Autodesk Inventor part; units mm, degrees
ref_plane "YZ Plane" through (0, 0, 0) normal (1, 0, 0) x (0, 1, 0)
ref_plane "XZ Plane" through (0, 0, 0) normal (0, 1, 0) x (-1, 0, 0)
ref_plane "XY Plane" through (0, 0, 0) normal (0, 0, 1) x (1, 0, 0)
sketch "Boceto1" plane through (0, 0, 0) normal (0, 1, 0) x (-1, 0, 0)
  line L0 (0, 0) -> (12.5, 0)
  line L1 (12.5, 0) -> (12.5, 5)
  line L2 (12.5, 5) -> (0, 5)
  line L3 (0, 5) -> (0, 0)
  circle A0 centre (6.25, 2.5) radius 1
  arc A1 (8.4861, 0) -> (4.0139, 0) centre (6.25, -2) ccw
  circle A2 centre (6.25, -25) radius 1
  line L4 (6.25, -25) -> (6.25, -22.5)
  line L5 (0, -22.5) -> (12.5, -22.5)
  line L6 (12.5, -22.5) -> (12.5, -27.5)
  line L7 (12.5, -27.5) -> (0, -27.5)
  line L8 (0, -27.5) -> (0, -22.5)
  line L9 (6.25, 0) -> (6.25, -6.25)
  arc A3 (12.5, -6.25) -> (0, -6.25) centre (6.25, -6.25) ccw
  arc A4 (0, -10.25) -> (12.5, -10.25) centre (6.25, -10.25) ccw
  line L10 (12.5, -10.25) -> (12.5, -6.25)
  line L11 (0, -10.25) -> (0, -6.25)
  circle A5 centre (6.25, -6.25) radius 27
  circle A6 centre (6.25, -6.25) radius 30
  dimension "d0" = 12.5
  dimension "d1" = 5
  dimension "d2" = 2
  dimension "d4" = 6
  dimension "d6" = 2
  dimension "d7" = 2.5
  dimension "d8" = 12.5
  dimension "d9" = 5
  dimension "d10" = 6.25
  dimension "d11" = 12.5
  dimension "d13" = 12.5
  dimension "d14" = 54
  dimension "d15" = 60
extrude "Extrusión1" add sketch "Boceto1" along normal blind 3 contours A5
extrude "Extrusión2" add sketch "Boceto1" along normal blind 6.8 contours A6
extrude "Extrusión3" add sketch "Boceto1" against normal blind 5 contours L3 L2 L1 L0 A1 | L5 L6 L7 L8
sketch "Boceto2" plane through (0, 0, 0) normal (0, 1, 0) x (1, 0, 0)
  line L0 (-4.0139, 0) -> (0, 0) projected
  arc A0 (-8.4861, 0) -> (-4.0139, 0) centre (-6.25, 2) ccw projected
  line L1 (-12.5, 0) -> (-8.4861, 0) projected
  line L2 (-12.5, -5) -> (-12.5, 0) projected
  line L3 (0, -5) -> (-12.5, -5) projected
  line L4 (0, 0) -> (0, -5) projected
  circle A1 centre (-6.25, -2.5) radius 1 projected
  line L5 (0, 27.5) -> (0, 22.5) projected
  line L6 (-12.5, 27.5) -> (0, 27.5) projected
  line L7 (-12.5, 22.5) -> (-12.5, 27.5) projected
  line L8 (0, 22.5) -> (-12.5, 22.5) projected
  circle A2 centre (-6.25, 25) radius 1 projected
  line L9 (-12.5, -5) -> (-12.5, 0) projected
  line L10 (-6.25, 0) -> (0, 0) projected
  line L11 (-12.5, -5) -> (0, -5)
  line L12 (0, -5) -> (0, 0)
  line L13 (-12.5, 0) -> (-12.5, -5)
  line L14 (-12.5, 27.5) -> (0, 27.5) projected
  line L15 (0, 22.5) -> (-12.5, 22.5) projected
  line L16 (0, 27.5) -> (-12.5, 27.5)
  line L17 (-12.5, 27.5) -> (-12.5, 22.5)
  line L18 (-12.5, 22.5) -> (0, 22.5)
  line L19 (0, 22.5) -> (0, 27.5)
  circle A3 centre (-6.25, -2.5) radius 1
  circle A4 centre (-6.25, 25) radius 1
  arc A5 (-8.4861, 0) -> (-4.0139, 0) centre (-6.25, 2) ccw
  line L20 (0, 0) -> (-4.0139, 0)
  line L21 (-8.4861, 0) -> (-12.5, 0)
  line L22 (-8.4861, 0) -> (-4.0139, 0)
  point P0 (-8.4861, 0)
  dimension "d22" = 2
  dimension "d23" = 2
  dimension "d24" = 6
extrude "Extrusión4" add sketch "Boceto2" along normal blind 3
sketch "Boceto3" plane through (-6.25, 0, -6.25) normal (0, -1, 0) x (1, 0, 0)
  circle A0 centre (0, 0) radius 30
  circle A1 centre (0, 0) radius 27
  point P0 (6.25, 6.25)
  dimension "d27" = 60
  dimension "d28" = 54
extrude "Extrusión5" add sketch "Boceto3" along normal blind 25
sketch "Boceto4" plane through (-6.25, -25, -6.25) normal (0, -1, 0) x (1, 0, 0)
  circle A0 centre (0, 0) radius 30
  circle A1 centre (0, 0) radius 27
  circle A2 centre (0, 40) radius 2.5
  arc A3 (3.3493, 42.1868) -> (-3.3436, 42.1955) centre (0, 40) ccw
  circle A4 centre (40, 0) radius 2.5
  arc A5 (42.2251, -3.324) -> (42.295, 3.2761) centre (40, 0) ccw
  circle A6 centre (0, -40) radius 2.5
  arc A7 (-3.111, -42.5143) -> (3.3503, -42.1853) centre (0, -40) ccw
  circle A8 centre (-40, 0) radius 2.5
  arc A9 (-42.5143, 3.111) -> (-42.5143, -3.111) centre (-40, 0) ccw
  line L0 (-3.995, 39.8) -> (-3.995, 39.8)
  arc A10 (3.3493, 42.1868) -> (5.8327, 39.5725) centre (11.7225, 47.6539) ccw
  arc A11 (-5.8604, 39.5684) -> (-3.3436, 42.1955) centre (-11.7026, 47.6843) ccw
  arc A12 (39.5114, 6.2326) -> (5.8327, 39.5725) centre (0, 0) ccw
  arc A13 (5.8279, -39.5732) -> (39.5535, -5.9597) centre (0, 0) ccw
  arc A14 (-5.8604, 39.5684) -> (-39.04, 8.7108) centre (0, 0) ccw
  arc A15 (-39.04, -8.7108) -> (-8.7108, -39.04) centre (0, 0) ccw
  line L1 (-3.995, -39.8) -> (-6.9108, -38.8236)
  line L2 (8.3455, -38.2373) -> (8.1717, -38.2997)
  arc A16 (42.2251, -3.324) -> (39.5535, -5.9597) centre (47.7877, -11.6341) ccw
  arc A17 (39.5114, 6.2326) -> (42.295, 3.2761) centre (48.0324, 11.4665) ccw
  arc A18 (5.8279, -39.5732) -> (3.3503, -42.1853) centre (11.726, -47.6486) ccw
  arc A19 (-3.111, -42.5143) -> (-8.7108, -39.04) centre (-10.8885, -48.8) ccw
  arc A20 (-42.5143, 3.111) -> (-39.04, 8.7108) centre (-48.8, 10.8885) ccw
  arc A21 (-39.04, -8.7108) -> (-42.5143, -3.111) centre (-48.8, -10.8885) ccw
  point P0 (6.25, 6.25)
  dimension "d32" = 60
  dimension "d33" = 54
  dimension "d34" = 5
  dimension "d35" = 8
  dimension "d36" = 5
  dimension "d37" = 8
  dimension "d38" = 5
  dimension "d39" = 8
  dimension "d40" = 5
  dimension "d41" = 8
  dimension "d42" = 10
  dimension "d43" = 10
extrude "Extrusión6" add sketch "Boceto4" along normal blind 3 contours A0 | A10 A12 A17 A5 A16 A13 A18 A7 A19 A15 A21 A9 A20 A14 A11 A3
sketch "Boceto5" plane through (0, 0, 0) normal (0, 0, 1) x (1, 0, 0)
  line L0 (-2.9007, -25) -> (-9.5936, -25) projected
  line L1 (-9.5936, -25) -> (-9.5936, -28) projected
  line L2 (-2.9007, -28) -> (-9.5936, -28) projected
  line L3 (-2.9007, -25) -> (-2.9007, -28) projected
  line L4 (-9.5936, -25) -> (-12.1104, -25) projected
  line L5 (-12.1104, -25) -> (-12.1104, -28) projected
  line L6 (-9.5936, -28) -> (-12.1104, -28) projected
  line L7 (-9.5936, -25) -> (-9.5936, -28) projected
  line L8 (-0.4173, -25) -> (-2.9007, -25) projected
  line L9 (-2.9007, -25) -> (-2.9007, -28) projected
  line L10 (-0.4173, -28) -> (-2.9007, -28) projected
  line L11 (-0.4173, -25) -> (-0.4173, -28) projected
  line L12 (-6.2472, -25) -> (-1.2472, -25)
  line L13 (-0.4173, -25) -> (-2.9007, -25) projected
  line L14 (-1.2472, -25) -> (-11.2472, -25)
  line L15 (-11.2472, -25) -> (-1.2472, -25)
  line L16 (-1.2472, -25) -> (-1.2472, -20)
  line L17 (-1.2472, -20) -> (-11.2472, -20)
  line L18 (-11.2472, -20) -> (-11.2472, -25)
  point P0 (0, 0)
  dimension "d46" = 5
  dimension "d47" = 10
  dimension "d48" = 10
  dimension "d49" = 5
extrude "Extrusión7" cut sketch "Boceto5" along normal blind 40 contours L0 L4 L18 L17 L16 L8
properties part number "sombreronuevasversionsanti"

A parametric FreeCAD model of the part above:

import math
import FreeCAD as App
import Part
import Sketcher
from FreeCAD import Vector

doc = App.newDocument("Part")
body = doc.addObject("PartDesign::Body", "Body")
body.AllowCompound = True

# Sketch on XZ plane
sketch1 = body.newObject("Sketcher::SketchObject", "Sketch")
sketch1.AttachmentSupport = (doc.getObject("XZ_Plane"), [""])
sketch1.MapMode = "FlatFace"
sketch1.addGeometry([
    Part.Circle(Vector(-6.2, -6.2, 0), Vector(0, 0, 1), 27),  # 0
    Part.LineSegment(Vector(0, -22.5, 0), Vector(-12.5, -22.5, 0)),  # 1
    Part.LineSegment(Vector(-12.5, -22.5, 0), Vector(-12.5, -27.5, 0)),  # 2
    Part.LineSegment(Vector(-12.5, -27.5, 0), Vector(0, -27.5, 0)),  # 3
    Part.LineSegment(Vector(0, -27.5, 0), Vector(0, -22.5, 0)),  # 4
    Part.ArcOfCircle(Part.Circle(Vector(-6.2, -6.2, 0), Vector(0, 0, 1), 6.2), math.radians(0), math.radians(90)),  # 5
    Part.ArcOfCircle(Part.Circle(Vector(-6.2, -6.2, 0), Vector(0, 0, 1), 6.2), math.radians(90), math.radians(180)),  # 6
    Part.LineSegment(Vector(-12.5, -6.2, 0), Vector(-12.5, -10.2, 0)),  # 7
    Part.ArcOfCircle(Part.Circle(Vector(-6.2, -10.2, 0), Vector(0, 0, 1), 6.2), math.radians(180), math.radians(360)),  # 8
    Part.LineSegment(Vector(0, -10.2, 0), Vector(0, -6.2, 0)),  # 9
    Part.LineSegment(Vector(-6.2, 0, 0), Vector(0, 0, 0)),  # 10
    Part.LineSegment(Vector(0, 0, 0), Vector(0, 5, 0)),  # 11
    Part.LineSegment(Vector(0, 5, 0), Vector(-12.5, 5, 0)),  # 12
    Part.LineSegment(Vector(-12.5, 5, 0), Vector(-12.5, 0, 0)),  # 13
    Part.LineSegment(Vector(-12.5, 0, 0), Vector(-6.2, 0, 0)),  # 14
], False)
sketch1.addConstraint([
    Sketcher.Constraint("Coincident", 1, 2, 2, 1),
    Sketcher.Constraint("Coincident", 2, 2, 3, 1),
    Sketcher.Constraint("Coincident", 3, 2, 4, 1),
    Sketcher.Constraint("Coincident", 4, 2, 1, 1),
    Sketcher.Constraint("Tangent", 5, 2, 6, 1),
    Sketcher.Constraint("Tangent", 6, 2, 7, 1),
    Sketcher.Constraint("Tangent", 7, 2, 8, 1),
    Sketcher.Constraint("Tangent", 8, 2, 9, 1),
    Sketcher.Constraint("Tangent", 9, 2, 5, 1),
    Sketcher.Constraint("Coincident", 10, 2, 11, 1),
    Sketcher.Constraint("Coincident", 11, 2, 12, 1),
    Sketcher.Constraint("Coincident", 12, 2, 13, 1),
    Sketcher.Constraint("Coincident", 13, 2, 14, 1),
    Sketcher.Constraint("Coincident", 14, 2, 10, 1),
    Sketcher.Constraint("Horizontal", 1),
    Sketcher.Constraint("Vertical", 2),
    Sketcher.Constraint("Horizontal", 3),
    Sketcher.Constraint("Vertical", 4),
    Sketcher.Constraint("Vertical", 7),
    Sketcher.Constraint("Vertical", 9),
    Sketcher.Constraint("Horizontal", 10),
    Sketcher.Constraint("Vertical", 11),
    Sketcher.Constraint("Horizontal", 12),
    Sketcher.Constraint("Vertical", 13),
    Sketcher.Constraint("Horizontal", 14),
    Sketcher.Constraint("Coincident", 10, 2, -1, 1),
    Sketcher.Constraint("Coincident", 5, 3, 0, 3),
    Sketcher.Constraint("Coincident", 14, 2, 5, 2),
    Sketcher.Constraint("Equal", 5, 6),
    Sketcher.Constraint("PointOnObject", 3, 2, -2),
    Sketcher.Constraint("PointOnObject", 8, 2, -2),
    Sketcher.Constraint("Vertical", 8, 3, 5, 2),
    Sketcher.Constraint("Vertical", 2, 2, 6, 2),
    Sketcher.Constraint("Vertical", 7, 2, 12, 2),
    Sketcher.Constraint("Equal", 4, 11),
    Sketcher.Constraint("Diameter", 0, 54.0),
    Sketcher.Constraint("DistanceY", 2, 2, 2, 1, 5.0),
    Sketcher.Constraint("Radius", 5, 6.25),
    Sketcher.Constraint("DistanceY", 7, 2, 7, 1, 4.0),
    Sketcher.Constraint("DistanceY", 1, 2, -1, 1, 22.5),
])
pad1 = body.newObject("PartDesign::Pad", "Pad")
pad1.Profile = sketch1
pad1.Length = 3
pad1.Reversed = True

# Sketch on XZ plane
sketch2 = body.newObject("Sketcher::SketchObject", "Sketch001")
sketch2.AttachmentSupport = (doc.getObject("XZ_Plane"), [""])
sketch2.MapMode = "FlatFace"
sketch2.addGeometry([
    Part.Circle(Vector(-6, -6, 0), Vector(0, 0, 1), 30),
    Part.Circle(Vector(-6, -6, 0), Vector(0, 0, 1), 27),
], False)
sketch2.addConstraint([
    Sketcher.Constraint("Coincident", 1, 3, 0, 3),
    Sketcher.Constraint("Diameter", 0, 60.0),
    Sketcher.Constraint("Diameter", 1, 54.0),
    Sketcher.Constraint("DistanceX", 0, 3, -1, 1, 6.25),
    Sketcher.Constraint("DistanceY", 0, 3, -1, 1, 6.25),
])
pad2 = body.newObject("PartDesign::Pad", "Pad001")
pad2.Profile = sketch2
pad2.Length = 6.8
pad2.Reversed = True

# Sketch on XZ plane
sketch3 = body.newObject("Sketcher::SketchObject", "Sketch002")
sketch3.AttachmentSupport = (doc.getObject("XZ_Plane"), [""])
sketch3.MapMode = "FlatFace"
sketch3.addGeometry([
    Part.LineSegment(Vector(0, 5, 0), Vector(0, 0, 0)),  # 0
    Part.LineSegment(Vector(0, 0, 0), Vector(-4, 0, 0)),  # 1
    Part.ArcOfCircle(Part.Circle(Vector(-6.2, -2, 0), Vector(0, 0, 1), 3), math.radians(42), math.radians(138)),  # 2
    Part.LineSegment(Vector(-8.5, 0, 0), Vector(-12.5, 0, 0)),  # 3
    Part.LineSegment(Vector(-12.5, 0, 0), Vector(-12.5, 5, 0)),  # 4
    Part.LineSegment(Vector(-12.5, 5, 0), Vector(0, 5, 0)),  # 5
    Part.Circle(Vector(-6.2, 2.5, 0), Vector(0, 0, 1), 1),  # 6
    Part.LineSegment(Vector(-12.5, -22.5, 0), Vector(-6.2, -22.5, 0)),  # 7
    Part.LineSegment(Vector(-6.2, -22.5, 0), Vector(0, -22.5, 0)),  # 8
    Part.LineSegment(Vector(0, -22.5, 0), Vector(0, -27.5, 0)),  # 9
    Part.LineSegment(Vector(0, -27.5, 0), Vector(-12.5, -27.5, 0)),  # 10
    Part.LineSegment(Vector(-12.5, -27.5, 0), Vector(-12.5, -22.5, 0)),  # 11
    Part.Circle(Vector(-6.2, -25, 0), Vector(0, 0, 1), 1),  # 12
], False)
sketch3.addConstraint([
    Sketcher.Constraint("Coincident", 0, 2, 1, 1),
    Sketcher.Constraint("Coincident", 1, 2, 2, 1),
    Sketcher.Constraint("Coincident", 2, 2, 3, 1),
    Sketcher.Constraint("Coincident", 3, 2, 4, 1),
    Sketcher.Constraint("Coincident", 4, 2, 5, 1),
    Sketcher.Constraint("Coincident", 5, 2, 0, 1),
    Sketcher.Constraint("Coincident", 7, 2, 8, 1),
    Sketcher.Constraint("Coincident", 8, 2, 9, 1),
    Sketcher.Constraint("Coincident", 9, 2, 10, 1),
    Sketcher.Constraint("Coincident", 10, 2, 11, 1),
    Sketcher.Constraint("Coincident", 11, 2, 7, 1),
    Sketcher.Constraint("Vertical", 0),
    Sketcher.Constraint("Horizontal", 1),
    Sketcher.Constraint("Horizontal", 3),
    Sketcher.Constraint("Vertical", 4),
    Sketcher.Constraint("Horizontal", 5),
    Sketcher.Constraint("Horizontal", 7),
    Sketcher.Constraint("Horizontal", 8),
    Sketcher.Constraint("Vertical", 9),
    Sketcher.Constraint("Horizontal", 10),
    Sketcher.Constraint("Vertical", 11),
    Sketcher.Constraint("Coincident", 0, 2, -1, 1),
    Sketcher.Constraint("Equal", 6, 12),
    Sketcher.Constraint("PointOnObject", 2, 2, -1),
    Sketcher.Constraint("PointOnObject", 8, 2, -2),
    Sketcher.Constraint("Vertical", 2, 3, 6, 3),
    Sketcher.Constraint("Vertical", 6, 3, 12, 3),
    Sketcher.Constraint("Vertical", 12, 3, 7, 2),
    Sketcher.Constraint("Vertical", 4, 2, 10, 2),
    Sketcher.Constraint("Equal", 1, 3),
    Sketcher.Constraint("Equal", 4, 9),
    Sketcher.Constraint("Diameter", 6, 2.0),
    Sketcher.Constraint("Radius", 2, 3.0),
    Sketcher.Constraint("DistanceY", 0, 2, 0, 1, 5.0),
    Sketcher.Constraint("DistanceX", 5, 1, 5, 2, 12.5),
    Sketcher.Constraint("DistanceY", 2, 3, -1, 1, 2.0),
    Sketcher.Constraint("DistanceY", -1, 1, 6, 3, 2.5),
    Sketcher.Constraint("DistanceY", 12, 3, 7, 2, 2.5),
    Sketcher.Constraint("DistanceY", 12, 3, -1, 1, 25.0),
])
pad3 = body.newObject("PartDesign::Pad", "Pad002")
pad3.Profile = sketch3
pad3.Length = 5

# Sketch on XZ plane
sketch4 = body.newObject("Sketcher::SketchObject", "Sketch003")
sketch4.AttachmentSupport = (doc.getObject("XZ_Plane"), [""])
sketch4.MapMode = "FlatFace"
sketch4.addGeometry([
    Part.LineSegment(Vector(0, 0, 0), Vector(-12.5, 0, 0)),  # 0
    Part.LineSegment(Vector(-12.5, 0, 0), Vector(-12.5, 5, 0)),  # 1
    Part.LineSegment(Vector(-12.5, 5, 0), Vector(0, 5, 0)),  # 2
    Part.LineSegment(Vector(0, 5, 0), Vector(0, 0, 0)),  # 3
    Part.Circle(Vector(-6.2, 2.5, 0), Vector(0, 0, 1), 1),  # 4
    Part.LineSegment(Vector(0, -22.5, 0), Vector(0, -27.5, 0)),  # 5
    Part.LineSegment(Vector(0, -27.5, 0), Vector(-12.5, -27.5, 0)),  # 6
    Part.LineSegment(Vector(-12.5, -27.5, 0), Vector(-12.5, -22.5, 0)),  # 7
    Part.LineSegment(Vector(-12.5, -22.5, 0), Vector(0, -22.5, 0)),  # 8
    Part.Circle(Vector(-6.2, -25, 0), Vector(0, 0, 1), 1),  # 9
], False)
sketch4.addConstraint([
    Sketcher.Constraint("Coincident", 0, 2, 1, 1),
    Sketcher.Constraint("Coincident", 1, 2, 2, 1),
    Sketcher.Constraint("Coincident", 2, 2, 3, 1),
    Sketcher.Constraint("Coincident", 3, 2, 0, 1),
    Sketcher.Constraint("Coincident", 5, 2, 6, 1),
    Sketcher.Constraint("Coincident", 6, 2, 7, 1),
    Sketcher.Constraint("Coincident", 7, 2, 8, 1),
    Sketcher.Constraint("Coincident", 8, 2, 5, 1),
    Sketcher.Constraint("Horizontal", 0),
    Sketcher.Constraint("Vertical", 1),
    Sketcher.Constraint("Horizontal", 2),
    Sketcher.Constraint("Vertical", 3),
    Sketcher.Constraint("Vertical", 5),
    Sketcher.Constraint("Horizontal", 6),
    Sketcher.Constraint("Vertical", 7),
    Sketcher.Constraint("Horizontal", 8),
    Sketcher.Constraint("Coincident", 3, 2, -1, 1),
    Sketcher.Constraint("Equal", 4, 9),
    Sketcher.Constraint("PointOnObject", 5, 2, -2),
    Sketcher.Constraint("Vertical", 4, 3, 9, 3),
    Sketcher.Constraint("Vertical", 1, 2, 6, 2),
    Sketcher.Constraint("Equal", 3, 5),
    Sketcher.Constraint("Diameter", 4, 2.0),
    Sketcher.Constraint("DistanceY", 1, 1, 1, 2, 5.0),
    Sketcher.Constraint("DistanceX", 0, 2, 0, 1, 12.5),
    Sketcher.Constraint("DistanceY", 9, 3, -1, 1, 25.0),
    Sketcher.Constraint("DistanceY", 5, 2, 4, 3, 30.0),
    Sketcher.Constraint("DistanceY", -1, 1, 4, 3, 2.5),
    Sketcher.Constraint("DistanceX", 4, 3, -1, 1, 6.25),
])
pad4 = body.newObject("PartDesign::Pad", "Pad003")
pad4.Profile = sketch4
pad4.Length = 3
pad4.Reversed = True

# Sketch on XZ plane
sketch5 = body.newObject("Sketcher::SketchObject", "Sketch004")
sketch5.AttachmentSupport = (doc.getObject("XZ_Plane"), [""])
sketch5.MapMode = "FlatFace"
sketch5.addGeometry([
    Part.Circle(Vector(-6, -6, 0), Vector(0, 0, 1), 30),
    Part.Circle(Vector(-6, -6, 0), Vector(0, 0, 1), 27),
], False)
sketch5.addConstraint([
    Sketcher.Constraint("Coincident", 1, 3, 0, 3),
    Sketcher.Constraint("Diameter", 0, 60.0),
    Sketcher.Constraint("Diameter", 1, 54.0),
    Sketcher.Constraint("DistanceX", 0, 3, -1, 1, 6.25),
    Sketcher.Constraint("DistanceY", 0, 3, -1, 1, 6.25),
])
pad5 = body.newObject("PartDesign::Pad", "Pad004")
pad5.Profile = sketch5
pad5.Length = 25

# Sketch on XZ plane
sketch6 = body.newObject("Sketcher::SketchObject", "Sketch005")
sketch6.AttachmentSupport = (doc.getObject("XZ_Plane"), [""])
sketch6.MapMode = "FlatFace"
sketch6.AttachmentOffset = App.Placement(Vector(0, 0, 25), App.Rotation())
sketch6.addGeometry([
    Part.ArcOfCircle(Part.Circle(Vector(5.5, 41.4, 0), Vector(0, 0, 1), 10), math.radians(-147), math.radians(-126)),  # 0
    Part.ArcOfCircle(Part.Circle(Vector(-6.2, 33.8, 0), Vector(0, 0, 1), 4), math.radians(33), math.radians(147)),  # 1
    Part.ArcOfCircle(Part.Circle(Vector(-18, 41.4, 0), Vector(0, 0, 1), 10), math.radians(-54), math.radians(-33)),  # 2
    Part.ArcOfCircle(Part.Circle(Vector(-6.2, -6.2, 0), Vector(0, 0, 1), 40), math.radians(98), math.radians(167)),  # 3
    Part.ArcOfCircle(Part.Circle(Vector(-55, 4.6, 0), Vector(0, 0, 1), 10), math.radians(-51), math.radians(-13)),  # 4
    Part.ArcOfCircle(Part.Circle(Vector(-46.2, -6.2, 0), Vector(0, 0, 1), 4), math.radians(129), math.radians(231)),  # 5
    Part.ArcOfCircle(Part.Circle(Vector(-55, -17.1, 0), Vector(0, 0, 1), 10), math.radians(13), math.radians(51)),  # 6
    Part.ArcOfCircle(Part.Circle(Vector(-6.2, -6.2, 0), Vector(0, 0, 1), 40), math.radians(-167), math.radians(-103)),  # 7
    Part.ArcOfCircle(Part.Circle(Vector(-17.1, -55, 0), Vector(0, 0, 1), 10), math.radians(39), math.radians(77)),  # 8
    Part.ArcOfCircle(Part.Circle(Vector(-6.2, -46.2, 0), Vector(0, 0, 1), 4), math.radians(-141), math.radians(-33)),  # 9
    Part.ArcOfCircle(Part.Circle(Vector(5.5, -53.9, 0), Vector(0, 0, 1), 10), math.radians(126), math.radians(147)),  # 10
    Part.ArcOfCircle(Part.Circle(Vector(-6.2, -6.2, 0), Vector(0, 0, 1), 40), math.radians(-82), math.radians(-9)),  # 11
    Part.ArcOfCircle(Part.Circle(Vector(41.5, -17.9, 0), Vector(0, 0, 1), 10), math.radians(124), math.radians(145)),  # 12
    Part.ArcOfCircle(Part.Circle(Vector(33.8, -6.2, 0), Vector(0, 0, 1), 4), math.radians(-56), math.radians(55)),  # 13
    Part.ArcOfCircle(Part.Circle(Vector(41.8, 5.2, 0), Vector(0, 0, 1), 10), math.radians(-148), math.radians(-125)),  # 14
    Part.ArcOfCircle(Part.Circle(Vector(-6.2, -6.2, 0), Vector(0, 0, 1), 40), math.radians(9), math.radians(82)),  # 15
    Part.Circle(Vector(-6.2, -6.2, 0), Vector(0, 0, 1), 27),  # 16
    Part.Circle(Vector(-6.2, -46.2, 0), Vector(0, 0, 1), 2.5),  # 17
    Part.Circle(Vector(-46.2, -6.2, 0), Vector(0, 0, 1), 2.5),  # 18
    Part.Circle(Vector(33.8, -6.2, 0), Vector(0, 0, 1), 2.5),  # 19
    Part.Circle(Vector(-6.2, 33.8, 0), Vector(0, 0, 1), 2.5),  # 20
], False)
sketch6.addConstraint([
    Sketcher.Constraint("Tangent", 0, 1, 1, 1),
    Sketcher.Constraint("Tangent", 1, 2, 2, 2),
    Sketcher.Constraint("Coincident", 2, 1, 3, 1),
    Sketcher.Constraint("Tangent", 3, 2, 4, 2),
    Sketcher.Constraint("Tangent", 4, 1, 5, 1),
    Sketcher.Constraint("Tangent", 5, 2, 6, 2),
    Sketcher.Constraint("Tangent", 6, 1, 7, 1),
    Sketcher.Constraint("Tangent", 7, 2, 8, 2),
    Sketcher.Constraint("Tangent", 8, 1, 9, 1),
    Sketcher.Constraint("Tangent", 9, 2, 10, 2),
    Sketcher.Constraint("Coincident", 10, 1, 11, 1),
    Sketcher.Constraint("Coincident", 11, 2, 12, 2),
    Sketcher.Constraint("Tangent", 12, 1, 13, 1),
    Sketcher.Constraint("Tangent", 13, 2, 14, 2),
    Sketcher.Constraint("Coincident", 14, 1, 15, 1),
    Sketcher.Constraint("Coincident", 15, 2, 0, 2),
    Sketcher.Constraint("Coincident", 7, 3, 3, 3),
    Sketcher.Constraint("Coincident", 11, 3, 3, 3),
    Sketcher.Constraint("Coincident", 15, 3, 3, 3),
    Sketcher.Constraint("Coincident", 16, 3, 3, 3),
    Sketcher.Constraint("Coincident", 17, 3, 9, 3),
    Sketcher.Constraint("Coincident", 18, 3, 5, 3),
    Sketcher.Constraint("Coincident", 19, 3, 13, 3),
    Sketcher.Constraint("Coincident", 20, 3, 1, 3),
    Sketcher.Constraint("Equal", 1, 5),
    Sketcher.Constraint("Equal", 4, 6),
    Sketcher.Constraint("Equal", 3, 7),
    Sketcher.Constraint("Equal", 6, 8),
    Sketcher.Constraint("Equal", 5, 9),
    Sketcher.Constraint("Equal", 8, 10),
    Sketcher.Constraint("Equal", 7, 11),
    Sketcher.Constraint("Equal", 10, 12),
    Sketcher.Constraint("Equal", 9, 13),
    Sketcher.Constraint("Equal", 12, 14),
    Sketcher.Constraint("Equal", 11, 15),
    Sketcher.Constraint("Equal", 17, 18),
    Sketcher.Constraint("Equal", 18, 19),
    Sketcher.Constraint("Equal", 19, 20),
    Sketcher.Constraint("Horizontal", 3, 3, 5, 3),
    Sketcher.Constraint("Horizontal", 11, 3, 13, 3),
    Sketcher.Constraint("Vertical", 1, 3, 3, 3),
    Sketcher.Constraint("Vertical", 7, 3, 9, 3),
    Sketcher.Constraint("Diameter", 16, 54.0),
    Sketcher.Constraint("Diameter", 17, 5.0),
    Sketcher.Constraint("Radius", 1, 4.0),
    Sketcher.Constraint("Radius", 4, 10.0),
    Sketcher.Constraint("Radius", 3, 40.0),
    Sketcher.Constraint("Radius", 2, 10.001),
    Sketcher.Constraint("DistanceY", 3, 3, 1, 3, 40.0),
    Sketcher.Constraint("DistanceX", 5, 3, 3, 3, 40.0),
    Sketcher.Constraint("DistanceY", 9, 3, 3, 3, 40.0),
    Sketcher.Constraint("DistanceX", 3, 3, 13, 3, 40.0),
    Sketcher.Constraint("Radius", 0, 9.9986),
    Sketcher.Constraint("DistanceY", 12, 1, 13, 2, 6.6),
    Sketcher.Constraint("DistanceX", 1, 3, -1, 1, 6.25),
    Sketcher.Constraint("DistanceY", -1, 1, 1, 3, 33.75),
    Sketcher.Constraint("DistanceY", 12, 3, 12, 1, 8.31),
    Sketcher.Constraint("DistanceY", -1, 1, 0, 3, 41.403),
    Sketcher.Constraint("DistanceY", -1, 1, 2, 3, 41.435),
    Sketcher.Constraint("DistanceX", -1, 1, 10, 3, 5.476),
])
pad6 = body.newObject("PartDesign::Pad", "Pad005")
pad6.Profile = sketch6
pad6.Length = 3

# Sketch on XY plane
sketch7 = body.newObject("Sketcher::SketchObject", "Sketch006")
sketch7.AttachmentSupport = (doc.getObject("XY_Plane"), [""])
sketch7.MapMode = "FlatFace"
sketch7.addGeometry([
    Part.LineSegment(Vector(-11, -25, 0), Vector(-1, -25, 0)),
    Part.LineSegment(Vector(-1, -25, 0), Vector(-1, -20, 0)),
    Part.LineSegment(Vector(-1, -20, 0), Vector(-11, -20, 0)),
    Part.LineSegment(Vector(-11, -20, 0), Vector(-11, -25, 0)),
], False)
sketch7.addConstraint([
    Sketcher.Constraint("Coincident", 0, 2, 1, 1),
    Sketcher.Constraint("Coincident", 1, 2, 2, 1),
    Sketcher.Constraint("Coincident", 2, 2, 3, 1),
    Sketcher.Constraint("Coincident", 3, 2, 0, 1),
    Sketcher.Constraint("Horizontal", 0),
    Sketcher.Constraint("Vertical", 1),
    Sketcher.Constraint("Horizontal", 2),
    Sketcher.Constraint("Vertical", 3),
    Sketcher.Constraint("DistanceX", 0, 1, 0, 2, 10.0),
    Sketcher.Constraint("DistanceY", 1, 1, 1, 2, 5.0),
    Sketcher.Constraint("DistanceY", 0, 2, -1, 1, 25.0),
    Sketcher.Constraint("DistanceX", 0, 2, -1, 1, 1.2472),
])
pocket1 = body.newObject("PartDesign::Pocket", "Pocket")
pocket1.Profile = sketch7
pocket1.Length = 40
pocket1.Reversed = True

doc.recompute()
